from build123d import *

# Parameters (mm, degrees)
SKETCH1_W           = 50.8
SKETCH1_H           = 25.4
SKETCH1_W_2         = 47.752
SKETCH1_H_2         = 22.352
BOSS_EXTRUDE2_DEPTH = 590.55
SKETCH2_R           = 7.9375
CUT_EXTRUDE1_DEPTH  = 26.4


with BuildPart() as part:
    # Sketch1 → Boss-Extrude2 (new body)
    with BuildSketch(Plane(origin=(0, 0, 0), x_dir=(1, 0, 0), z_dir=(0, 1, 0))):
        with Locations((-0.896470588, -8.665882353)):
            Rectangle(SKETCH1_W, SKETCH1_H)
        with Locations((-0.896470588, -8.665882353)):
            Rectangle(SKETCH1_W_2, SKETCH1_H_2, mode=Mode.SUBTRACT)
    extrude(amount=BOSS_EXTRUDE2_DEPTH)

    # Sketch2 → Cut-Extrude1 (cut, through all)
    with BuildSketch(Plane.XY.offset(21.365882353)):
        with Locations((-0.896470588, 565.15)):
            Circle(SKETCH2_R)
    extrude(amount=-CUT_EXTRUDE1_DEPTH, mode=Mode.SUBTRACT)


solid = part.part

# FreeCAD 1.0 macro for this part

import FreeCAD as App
import Part
import Sketcher
Q = App.Units.Quantity

doc = App.newDocument("Part")
body = doc.addObject("PartDesign::Body", "Body")

sketch1 = body.newObject("Sketcher::SketchObject", "Sketch")
sketch1.AttachmentSupport = (doc.getObject("XZ_Plane"), [""])
sketch1.MapMode = "FlatFace"
sketch1.addGeometry([
    Part.LineSegment(App.Vector(-26, -4, 0), App.Vector(-26, 21, 0)),
    Part.LineSegment(App.Vector(-26, 21, 0), App.Vector(25, 21, 0)),
    Part.LineSegment(App.Vector(25, 21, 0), App.Vector(25, -4, 0)),
    Part.LineSegment(App.Vector(25, -4, 0), App.Vector(-26, -4, 0)),
    Part.LineSegment(App.Vector(23, 20, 0), App.Vector(-25, 20, 0)),
    Part.LineSegment(App.Vector(-25, 20, 0), App.Vector(-25, -3, 0)),
    Part.LineSegment(App.Vector(-25, -3, 0), App.Vector(23, -3, 0)),
    Part.LineSegment(App.Vector(23, -3, 0), App.Vector(23, 20, 0)),
], False)
sketch1.addConstraint([
    Sketcher.Constraint("Coincident", 0, 2, 1, 1),
    Sketcher.Constraint("Coincident", 1, 2, 2, 1),
    Sketcher.Constraint("Coincident", 2, 2, 3, 1),
    Sketcher.Constraint("Coincident", 3, 2, 0, 1),
    Sketcher.Constraint("Coincident", 4, 2, 5, 1),
    Sketcher.Constraint("Coincident", 5, 2, 6, 1),
    Sketcher.Constraint("Coincident", 6, 2, 7, 1),
    Sketcher.Constraint("Coincident", 7, 2, 4, 1),
    Sketcher.Constraint("Vertical", 0),
    Sketcher.Constraint("Horizontal", 1),
    Sketcher.Constraint("Vertical", 2),
    Sketcher.Constraint("Horizontal", 3),
    Sketcher.Constraint("Horizontal", 4),
    Sketcher.Constraint("Vertical", 5),
    Sketcher.Constraint("Horizontal", 6),
    Sketcher.Constraint("Vertical", 7),
    Sketcher.Constraint("DistanceX", 1, 1, 1, 2, Q("2 in")),
    Sketcher.Constraint("DistanceY", 0, 1, 0, 2, Q("1 in")),
    Sketcher.Constraint("DistanceX", 4, 2, 4, 1, Q("1.88 in")),
    Sketcher.Constraint("DistanceY", 5, 2, 5, 1, Q("0.88 in")),
    Sketcher.Constraint("DistanceX", 0, 2, 4, 2, Q("0.06 in")),
    Sketcher.Constraint("DistanceY", 4, 2, 0, 2, Q("0.06 in")),
    Sketcher.Constraint("DistanceX", 0, 2, -1, 1, Q("26.296471 mm")),
    Sketcher.Constraint("DistanceY", -1, 1, 0, 2, Q("21.365882 mm")),
])
pad1 = body.newObject("PartDesign::Pad", "Pad")
pad1.Profile = sketch1
pad1.Length = Q("23.25 in")
pad1.Reversed = True

sketch2 = body.newObject("Sketcher::SketchObject", "Sketch001")
sketch2.AttachmentSupport = (doc.getObject("XY_Plane"), [""])
sketch2.MapMode = "FlatFace"
sketch2.AttachmentOffset = App.Placement(App.Vector(0, 0, 21.365882), App.Rotation())
sketch2.addGeometry(Part.Circle(App.Vector(-1, 565, 0), App.Vector(0, 0, 1), 8), False)
sketch2.addConstraint([
    Sketcher.Constraint("Diameter", 0, Q("0.625 in")),
    Sketcher.Constraint("DistanceY", -1, 1, 0, 3, Q("22.25 in")),
    Sketcher.Constraint("DistanceX", 0, 3, -1, 1, Q("0.896471 mm")),
])
pocket1 = body.newObject("PartDesign::Pocket", "Pocket")
pocket1.Profile = sketch2
pocket1.Type = "ThroughAll"

doc.recompute()
